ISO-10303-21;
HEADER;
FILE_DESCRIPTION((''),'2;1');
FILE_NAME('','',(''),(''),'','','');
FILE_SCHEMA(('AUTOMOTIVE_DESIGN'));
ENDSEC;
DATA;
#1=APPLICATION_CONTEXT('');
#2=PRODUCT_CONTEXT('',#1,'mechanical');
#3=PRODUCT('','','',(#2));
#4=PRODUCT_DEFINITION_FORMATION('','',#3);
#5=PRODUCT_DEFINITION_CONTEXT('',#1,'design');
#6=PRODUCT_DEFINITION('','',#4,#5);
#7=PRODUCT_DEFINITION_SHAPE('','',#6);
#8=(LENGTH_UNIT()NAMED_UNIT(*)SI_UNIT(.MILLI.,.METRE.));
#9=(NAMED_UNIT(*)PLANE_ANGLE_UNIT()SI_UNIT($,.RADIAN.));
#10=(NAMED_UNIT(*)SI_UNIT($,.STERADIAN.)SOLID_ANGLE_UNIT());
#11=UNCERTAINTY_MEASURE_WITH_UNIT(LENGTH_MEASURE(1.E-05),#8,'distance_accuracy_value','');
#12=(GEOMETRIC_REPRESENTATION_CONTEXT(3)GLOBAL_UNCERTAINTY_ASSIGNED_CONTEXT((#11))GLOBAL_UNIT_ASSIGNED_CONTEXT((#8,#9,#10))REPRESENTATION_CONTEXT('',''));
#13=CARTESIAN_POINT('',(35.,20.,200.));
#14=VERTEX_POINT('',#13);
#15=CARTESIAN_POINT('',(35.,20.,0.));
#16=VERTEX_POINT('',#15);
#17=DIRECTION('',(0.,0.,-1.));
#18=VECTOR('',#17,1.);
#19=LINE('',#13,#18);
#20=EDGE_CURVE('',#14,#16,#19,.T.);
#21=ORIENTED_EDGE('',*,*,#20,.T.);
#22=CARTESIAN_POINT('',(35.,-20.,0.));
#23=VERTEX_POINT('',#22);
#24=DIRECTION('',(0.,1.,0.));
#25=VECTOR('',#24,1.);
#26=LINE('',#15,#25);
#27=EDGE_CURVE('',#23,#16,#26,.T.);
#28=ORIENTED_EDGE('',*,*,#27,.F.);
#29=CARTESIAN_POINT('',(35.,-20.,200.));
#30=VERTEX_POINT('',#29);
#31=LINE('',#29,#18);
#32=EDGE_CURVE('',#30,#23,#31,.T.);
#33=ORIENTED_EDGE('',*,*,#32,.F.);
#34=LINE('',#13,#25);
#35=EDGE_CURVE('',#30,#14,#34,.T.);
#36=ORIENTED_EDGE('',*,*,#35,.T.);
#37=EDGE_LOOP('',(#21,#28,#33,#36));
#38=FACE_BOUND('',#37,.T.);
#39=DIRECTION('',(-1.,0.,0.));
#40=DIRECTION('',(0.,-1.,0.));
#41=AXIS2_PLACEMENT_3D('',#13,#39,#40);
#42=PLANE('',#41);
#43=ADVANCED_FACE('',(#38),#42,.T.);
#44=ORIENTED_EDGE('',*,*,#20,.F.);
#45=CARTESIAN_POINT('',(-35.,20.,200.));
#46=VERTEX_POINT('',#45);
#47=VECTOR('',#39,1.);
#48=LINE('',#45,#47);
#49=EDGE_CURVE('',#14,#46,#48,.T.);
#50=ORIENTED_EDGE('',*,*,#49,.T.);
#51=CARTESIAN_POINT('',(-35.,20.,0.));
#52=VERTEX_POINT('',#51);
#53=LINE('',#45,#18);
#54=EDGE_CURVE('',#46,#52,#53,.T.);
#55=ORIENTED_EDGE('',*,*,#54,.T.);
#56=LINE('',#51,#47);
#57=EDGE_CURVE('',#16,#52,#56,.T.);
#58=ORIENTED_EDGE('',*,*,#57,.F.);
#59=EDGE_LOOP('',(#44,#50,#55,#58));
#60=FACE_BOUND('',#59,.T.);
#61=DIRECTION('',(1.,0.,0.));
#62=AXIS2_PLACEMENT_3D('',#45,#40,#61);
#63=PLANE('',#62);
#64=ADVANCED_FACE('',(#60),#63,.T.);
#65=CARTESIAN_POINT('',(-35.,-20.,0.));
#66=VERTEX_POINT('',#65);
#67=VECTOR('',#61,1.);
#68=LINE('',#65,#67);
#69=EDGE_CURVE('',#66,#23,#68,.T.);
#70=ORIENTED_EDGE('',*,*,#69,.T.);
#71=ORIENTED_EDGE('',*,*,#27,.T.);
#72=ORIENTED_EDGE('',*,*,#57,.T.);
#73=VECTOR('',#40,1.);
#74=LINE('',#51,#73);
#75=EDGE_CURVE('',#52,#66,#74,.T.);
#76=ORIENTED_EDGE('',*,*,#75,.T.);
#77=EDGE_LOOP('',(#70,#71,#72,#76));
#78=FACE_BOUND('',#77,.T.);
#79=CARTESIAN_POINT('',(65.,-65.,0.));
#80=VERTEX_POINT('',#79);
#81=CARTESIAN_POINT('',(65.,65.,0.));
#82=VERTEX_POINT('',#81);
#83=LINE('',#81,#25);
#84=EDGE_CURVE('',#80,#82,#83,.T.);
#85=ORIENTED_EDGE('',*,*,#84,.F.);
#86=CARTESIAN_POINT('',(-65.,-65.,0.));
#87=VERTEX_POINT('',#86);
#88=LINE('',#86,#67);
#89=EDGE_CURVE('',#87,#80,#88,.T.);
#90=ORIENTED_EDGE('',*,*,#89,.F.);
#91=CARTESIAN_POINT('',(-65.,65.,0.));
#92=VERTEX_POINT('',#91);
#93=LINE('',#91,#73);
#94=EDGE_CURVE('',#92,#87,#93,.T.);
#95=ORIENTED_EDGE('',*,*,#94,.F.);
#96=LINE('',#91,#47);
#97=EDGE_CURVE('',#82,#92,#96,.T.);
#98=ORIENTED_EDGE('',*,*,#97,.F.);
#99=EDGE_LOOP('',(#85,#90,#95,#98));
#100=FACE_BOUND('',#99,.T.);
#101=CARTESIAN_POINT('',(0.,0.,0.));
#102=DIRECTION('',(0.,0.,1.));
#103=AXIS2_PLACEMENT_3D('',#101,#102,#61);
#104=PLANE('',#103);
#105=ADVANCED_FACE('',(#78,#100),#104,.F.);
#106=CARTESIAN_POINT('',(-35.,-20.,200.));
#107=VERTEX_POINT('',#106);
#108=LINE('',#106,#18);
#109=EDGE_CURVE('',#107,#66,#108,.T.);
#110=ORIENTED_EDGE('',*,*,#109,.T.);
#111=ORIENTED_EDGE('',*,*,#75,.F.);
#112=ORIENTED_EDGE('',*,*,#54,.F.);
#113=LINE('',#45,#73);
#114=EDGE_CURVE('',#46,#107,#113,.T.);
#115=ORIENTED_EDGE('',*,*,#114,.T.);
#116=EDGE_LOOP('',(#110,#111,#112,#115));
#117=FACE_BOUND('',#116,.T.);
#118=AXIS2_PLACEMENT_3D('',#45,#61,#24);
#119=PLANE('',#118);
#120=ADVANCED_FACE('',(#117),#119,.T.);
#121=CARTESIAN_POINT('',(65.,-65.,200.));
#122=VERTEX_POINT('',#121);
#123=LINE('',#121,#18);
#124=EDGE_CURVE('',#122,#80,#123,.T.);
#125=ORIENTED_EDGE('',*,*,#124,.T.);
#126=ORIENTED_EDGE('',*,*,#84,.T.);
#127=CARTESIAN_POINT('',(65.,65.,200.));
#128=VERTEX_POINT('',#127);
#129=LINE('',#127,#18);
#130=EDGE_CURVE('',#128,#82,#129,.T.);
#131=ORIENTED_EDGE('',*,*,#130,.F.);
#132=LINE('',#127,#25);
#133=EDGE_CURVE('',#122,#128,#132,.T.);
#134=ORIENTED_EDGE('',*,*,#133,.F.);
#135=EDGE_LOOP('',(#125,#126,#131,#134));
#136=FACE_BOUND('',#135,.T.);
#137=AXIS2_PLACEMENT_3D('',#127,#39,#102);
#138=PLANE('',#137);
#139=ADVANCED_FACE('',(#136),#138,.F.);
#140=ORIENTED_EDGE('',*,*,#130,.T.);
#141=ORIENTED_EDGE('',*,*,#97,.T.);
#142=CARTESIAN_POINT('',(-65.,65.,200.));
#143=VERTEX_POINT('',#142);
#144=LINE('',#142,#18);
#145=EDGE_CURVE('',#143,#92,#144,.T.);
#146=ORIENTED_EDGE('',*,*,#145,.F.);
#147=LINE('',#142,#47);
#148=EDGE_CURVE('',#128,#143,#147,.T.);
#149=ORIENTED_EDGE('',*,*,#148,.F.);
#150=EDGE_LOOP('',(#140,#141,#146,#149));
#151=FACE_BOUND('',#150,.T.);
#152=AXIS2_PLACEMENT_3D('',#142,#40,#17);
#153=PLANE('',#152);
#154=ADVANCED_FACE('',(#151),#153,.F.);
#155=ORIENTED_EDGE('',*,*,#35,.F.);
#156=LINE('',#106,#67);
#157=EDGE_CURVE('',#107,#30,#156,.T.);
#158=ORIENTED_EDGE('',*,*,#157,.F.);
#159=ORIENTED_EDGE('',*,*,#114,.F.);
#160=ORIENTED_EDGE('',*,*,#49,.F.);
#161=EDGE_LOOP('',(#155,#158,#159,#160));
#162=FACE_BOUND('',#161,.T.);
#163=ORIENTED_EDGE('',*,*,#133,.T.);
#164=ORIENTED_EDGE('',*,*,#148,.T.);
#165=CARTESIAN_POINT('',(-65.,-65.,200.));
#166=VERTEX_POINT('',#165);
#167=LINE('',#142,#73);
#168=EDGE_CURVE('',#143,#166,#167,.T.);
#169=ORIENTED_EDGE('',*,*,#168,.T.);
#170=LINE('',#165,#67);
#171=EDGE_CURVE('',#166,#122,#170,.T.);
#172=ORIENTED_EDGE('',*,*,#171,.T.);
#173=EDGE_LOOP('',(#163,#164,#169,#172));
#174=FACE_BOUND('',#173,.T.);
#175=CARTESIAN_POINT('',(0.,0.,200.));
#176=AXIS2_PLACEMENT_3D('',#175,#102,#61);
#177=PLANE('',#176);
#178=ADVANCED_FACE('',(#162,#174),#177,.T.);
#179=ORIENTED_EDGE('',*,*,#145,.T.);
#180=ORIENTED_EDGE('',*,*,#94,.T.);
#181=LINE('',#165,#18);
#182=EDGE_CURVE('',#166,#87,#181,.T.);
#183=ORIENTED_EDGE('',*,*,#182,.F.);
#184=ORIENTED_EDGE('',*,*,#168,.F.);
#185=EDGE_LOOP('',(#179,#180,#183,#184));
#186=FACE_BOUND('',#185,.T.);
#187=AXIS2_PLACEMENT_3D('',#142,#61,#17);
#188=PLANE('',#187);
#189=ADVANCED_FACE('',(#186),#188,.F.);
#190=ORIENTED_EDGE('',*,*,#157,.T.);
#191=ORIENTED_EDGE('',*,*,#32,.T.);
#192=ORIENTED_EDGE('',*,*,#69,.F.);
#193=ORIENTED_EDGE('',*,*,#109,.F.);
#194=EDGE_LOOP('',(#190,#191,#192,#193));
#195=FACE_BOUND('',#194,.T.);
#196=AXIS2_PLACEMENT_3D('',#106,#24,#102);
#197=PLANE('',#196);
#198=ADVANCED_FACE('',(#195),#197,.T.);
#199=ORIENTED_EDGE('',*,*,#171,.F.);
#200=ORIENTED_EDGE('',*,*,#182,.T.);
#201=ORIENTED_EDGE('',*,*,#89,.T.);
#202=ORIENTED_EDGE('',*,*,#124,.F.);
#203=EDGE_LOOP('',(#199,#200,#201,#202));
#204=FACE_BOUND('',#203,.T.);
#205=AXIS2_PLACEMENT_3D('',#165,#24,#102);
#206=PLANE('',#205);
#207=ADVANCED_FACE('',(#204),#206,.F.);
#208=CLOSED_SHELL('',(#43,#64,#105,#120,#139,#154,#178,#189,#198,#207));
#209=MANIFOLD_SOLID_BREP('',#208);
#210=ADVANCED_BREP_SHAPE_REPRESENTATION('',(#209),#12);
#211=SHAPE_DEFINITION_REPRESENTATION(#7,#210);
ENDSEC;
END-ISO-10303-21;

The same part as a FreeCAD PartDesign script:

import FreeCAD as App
import Part
import Sketcher

V = App.Vector
Q = App.Units.Quantity

doc = App.newDocument("Part")
body = doc.addObject("PartDesign::Body", "Body")

sketch1 = body.newObject("Sketcher::SketchObject", "Sketch")
sketch1.AttachmentSupport = (doc.getObject("XY_Plane"), [""])
sketch1.MapMode = "FlatFace"
sketch1.addGeometry(Part.LineSegment(V(-65, 65, 0), V(-65, -65, 0)), False)
sketch1.addGeometry(Part.LineSegment(V(-65, -65, 0), V(65, -65, 0)), False)
sketch1.addGeometry(Part.LineSegment(V(65, -65, 0), V(65, 65, 0)), False)
sketch1.addGeometry(Part.LineSegment(V(65, 65, 0), V(-65, 65, 0)), False)
sketch1.addGeometry(Part.LineSegment(V(35, -20, 0), V(-35, -20, 0)), False)
sketch1.addGeometry(Part.LineSegment(V(-35, -20, 0), V(-35, 20, 0)), False)
sketch1.addGeometry(Part.LineSegment(V(-35, 20, 0), V(35, 20, 0)), False)
sketch1.addGeometry(Part.LineSegment(V(35, 20, 0), V(35, -20, 0)), False)
sketch1.addConstraint(Sketcher.Constraint("Coincident", 0, 2, 1, 1))
sketch1.addConstraint(Sketcher.Constraint("Coincident", 1, 2, 2, 1))
sketch1.addConstraint(Sketcher.Constraint("Coincident", 2, 2, 3, 1))
sketch1.addConstraint(Sketcher.Constraint("Coincident", 3, 2, 0, 1))
sketch1.addConstraint(Sketcher.Constraint("Coincident", 4, 2, 5, 1))
sketch1.addConstraint(Sketcher.Constraint("Coincident", 5, 2, 6, 1))
sketch1.addConstraint(Sketcher.Constraint("Coincident", 6, 2, 7, 1))
sketch1.addConstraint(Sketcher.Constraint("Coincident", 7, 2, 4, 1))
sketch1.addConstraint(Sketcher.Constraint("Vertical", 0))
sketch1.addConstraint(Sketcher.Constraint("Horizontal", 1))
sketch1.addConstraint(Sketcher.Constraint("Vertical", 2))
sketch1.addConstraint(Sketcher.Constraint("Horizontal", 3))
sketch1.addConstraint(Sketcher.Constraint("Horizontal", 4))
sketch1.addConstraint(Sketcher.Constraint("Vertical", 5))
sketch1.addConstraint(Sketcher.Constraint("Horizontal", 6))
sketch1.addConstraint(Sketcher.Constraint("Vertical", 7))
sketch1.addConstraint(Sketcher.Constraint("Symmetric", 0, 2, 2, 2, -1, 1))
sketch1.addConstraint(Sketcher.Constraint("Symmetric", 4, 2, 6, 2, -1, 1))
sketch1.addConstraint(Sketcher.Constraint("Equal", 3, 0))
sketch1.addConstraint(Sketcher.Constraint("DistanceX", 1, 1, 1, 2, Q("130 mm")))
sketch1.addConstraint(Sketcher.Constraint("DistanceX", 4, 2, 4, 1, Q("70 mm")))
sketch1.addConstraint(Sketcher.Constraint("DistanceY", 5, 1, 5, 2, Q("40 mm")))
pad1 = body.newObject("PartDesign::Pad", "Pad")
pad1.Profile = sketch1
pad1.Length = 200

doc.recompute()
